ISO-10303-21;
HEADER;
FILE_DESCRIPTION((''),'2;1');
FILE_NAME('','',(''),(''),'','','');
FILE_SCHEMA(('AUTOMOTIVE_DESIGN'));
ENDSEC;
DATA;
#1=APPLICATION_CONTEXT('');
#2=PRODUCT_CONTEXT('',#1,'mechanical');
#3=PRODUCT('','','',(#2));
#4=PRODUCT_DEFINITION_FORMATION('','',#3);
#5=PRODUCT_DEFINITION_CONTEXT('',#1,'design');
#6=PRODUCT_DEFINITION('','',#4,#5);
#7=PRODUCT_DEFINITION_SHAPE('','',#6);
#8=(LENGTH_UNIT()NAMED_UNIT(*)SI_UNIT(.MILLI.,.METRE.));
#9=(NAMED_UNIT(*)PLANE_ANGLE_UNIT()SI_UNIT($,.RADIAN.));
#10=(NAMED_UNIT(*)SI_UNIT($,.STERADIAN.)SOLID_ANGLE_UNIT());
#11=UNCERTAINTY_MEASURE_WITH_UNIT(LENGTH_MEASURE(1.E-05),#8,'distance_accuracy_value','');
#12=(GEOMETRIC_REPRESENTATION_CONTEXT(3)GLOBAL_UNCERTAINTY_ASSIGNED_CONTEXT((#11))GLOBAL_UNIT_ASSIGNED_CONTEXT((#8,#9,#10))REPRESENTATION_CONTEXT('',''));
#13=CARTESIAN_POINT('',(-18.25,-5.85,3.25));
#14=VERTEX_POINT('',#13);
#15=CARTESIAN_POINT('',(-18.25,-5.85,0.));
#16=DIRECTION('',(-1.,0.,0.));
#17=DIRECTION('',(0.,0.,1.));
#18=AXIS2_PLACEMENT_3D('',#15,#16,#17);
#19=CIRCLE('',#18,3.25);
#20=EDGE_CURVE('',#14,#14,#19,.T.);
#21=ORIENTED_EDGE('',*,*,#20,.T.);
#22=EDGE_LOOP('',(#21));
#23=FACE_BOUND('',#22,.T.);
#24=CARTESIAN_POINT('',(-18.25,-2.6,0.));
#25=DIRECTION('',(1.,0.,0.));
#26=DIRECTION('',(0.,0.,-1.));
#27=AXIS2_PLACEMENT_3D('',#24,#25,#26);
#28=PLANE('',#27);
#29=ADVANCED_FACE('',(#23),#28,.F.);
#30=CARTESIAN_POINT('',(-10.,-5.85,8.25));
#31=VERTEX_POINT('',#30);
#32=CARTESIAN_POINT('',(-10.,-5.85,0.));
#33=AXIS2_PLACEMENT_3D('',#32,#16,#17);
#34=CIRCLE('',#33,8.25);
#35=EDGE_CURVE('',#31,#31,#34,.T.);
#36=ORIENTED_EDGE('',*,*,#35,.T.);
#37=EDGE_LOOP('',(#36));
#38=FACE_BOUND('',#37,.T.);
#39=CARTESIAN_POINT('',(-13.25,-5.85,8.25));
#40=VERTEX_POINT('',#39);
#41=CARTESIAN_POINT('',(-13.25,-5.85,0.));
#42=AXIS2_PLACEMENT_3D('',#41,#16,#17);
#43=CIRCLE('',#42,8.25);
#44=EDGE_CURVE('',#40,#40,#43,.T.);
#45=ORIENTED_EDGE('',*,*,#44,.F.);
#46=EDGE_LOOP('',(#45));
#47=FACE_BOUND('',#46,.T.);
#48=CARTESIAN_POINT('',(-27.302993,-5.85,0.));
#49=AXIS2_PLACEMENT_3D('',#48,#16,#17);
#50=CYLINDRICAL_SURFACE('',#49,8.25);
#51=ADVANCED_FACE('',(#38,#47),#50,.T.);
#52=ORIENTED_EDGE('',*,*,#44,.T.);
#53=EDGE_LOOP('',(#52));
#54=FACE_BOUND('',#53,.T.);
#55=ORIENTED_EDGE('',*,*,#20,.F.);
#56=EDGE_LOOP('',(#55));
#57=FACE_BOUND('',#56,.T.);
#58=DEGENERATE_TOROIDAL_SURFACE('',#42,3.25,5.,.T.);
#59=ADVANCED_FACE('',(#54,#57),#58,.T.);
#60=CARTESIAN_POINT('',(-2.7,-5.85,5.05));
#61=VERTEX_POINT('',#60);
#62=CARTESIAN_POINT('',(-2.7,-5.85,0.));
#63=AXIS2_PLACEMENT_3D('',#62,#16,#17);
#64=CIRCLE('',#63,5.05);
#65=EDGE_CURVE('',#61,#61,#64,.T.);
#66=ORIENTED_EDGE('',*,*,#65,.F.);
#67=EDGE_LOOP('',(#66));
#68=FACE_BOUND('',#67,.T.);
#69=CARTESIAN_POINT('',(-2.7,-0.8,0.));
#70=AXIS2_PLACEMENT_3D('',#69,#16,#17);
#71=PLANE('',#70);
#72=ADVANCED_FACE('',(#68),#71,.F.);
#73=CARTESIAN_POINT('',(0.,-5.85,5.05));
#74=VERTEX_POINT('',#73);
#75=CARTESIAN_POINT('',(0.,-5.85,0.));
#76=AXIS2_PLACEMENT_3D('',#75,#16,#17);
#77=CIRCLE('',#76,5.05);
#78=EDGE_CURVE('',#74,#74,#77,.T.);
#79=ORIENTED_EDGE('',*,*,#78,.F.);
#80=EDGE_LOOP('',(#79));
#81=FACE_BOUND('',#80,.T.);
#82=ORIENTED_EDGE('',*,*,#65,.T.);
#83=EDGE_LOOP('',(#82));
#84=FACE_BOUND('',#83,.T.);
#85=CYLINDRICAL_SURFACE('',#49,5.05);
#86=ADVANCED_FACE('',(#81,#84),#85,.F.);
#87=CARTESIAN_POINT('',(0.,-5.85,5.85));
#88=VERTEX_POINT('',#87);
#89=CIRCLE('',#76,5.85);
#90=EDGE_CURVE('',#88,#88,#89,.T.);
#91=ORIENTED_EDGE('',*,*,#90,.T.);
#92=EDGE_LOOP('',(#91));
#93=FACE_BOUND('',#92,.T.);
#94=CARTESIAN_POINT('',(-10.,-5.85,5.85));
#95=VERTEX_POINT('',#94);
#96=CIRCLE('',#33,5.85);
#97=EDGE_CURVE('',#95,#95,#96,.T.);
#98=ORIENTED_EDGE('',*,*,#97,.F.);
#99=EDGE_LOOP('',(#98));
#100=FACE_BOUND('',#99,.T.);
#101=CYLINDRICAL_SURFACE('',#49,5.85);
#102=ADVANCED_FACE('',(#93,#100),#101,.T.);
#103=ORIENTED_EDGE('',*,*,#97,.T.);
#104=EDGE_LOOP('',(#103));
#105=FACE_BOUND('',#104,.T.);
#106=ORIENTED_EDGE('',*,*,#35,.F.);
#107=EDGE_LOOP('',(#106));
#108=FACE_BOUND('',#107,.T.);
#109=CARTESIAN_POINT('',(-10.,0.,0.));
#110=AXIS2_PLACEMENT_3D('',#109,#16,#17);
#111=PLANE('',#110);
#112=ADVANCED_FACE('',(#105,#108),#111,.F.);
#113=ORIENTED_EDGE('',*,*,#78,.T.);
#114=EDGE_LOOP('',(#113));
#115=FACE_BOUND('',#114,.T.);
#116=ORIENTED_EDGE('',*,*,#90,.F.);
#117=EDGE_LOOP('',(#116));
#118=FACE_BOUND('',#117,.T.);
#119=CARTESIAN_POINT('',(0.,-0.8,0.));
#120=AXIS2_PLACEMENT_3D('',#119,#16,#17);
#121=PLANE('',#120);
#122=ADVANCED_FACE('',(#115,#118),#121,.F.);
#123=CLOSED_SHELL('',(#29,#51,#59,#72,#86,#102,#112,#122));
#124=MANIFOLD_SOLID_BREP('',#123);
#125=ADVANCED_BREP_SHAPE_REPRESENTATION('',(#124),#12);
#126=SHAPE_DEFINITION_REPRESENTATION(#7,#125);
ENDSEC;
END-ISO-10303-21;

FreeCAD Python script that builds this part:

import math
import FreeCAD as App
import Part
import Sketcher

V = App.Vector

doc = App.newDocument("Part")
body = doc.addObject("PartDesign::Body", "Body")

# Sketch on XY plane
sketch1 = doc.addObject("Sketcher::SketchObject", "Sketch")
body.addObject(sketch1)
sketch1.AttachmentSupport = (doc.XY_Plane, [""])
sketch1.MapMode = "FlatFace"
sketch1.addGeometry(Part.LineSegment(V(0, 0, 0), V(-10, 0, 0)), False)
sketch1.addGeometry(Part.LineSegment(V(-10, 0, 0), V(-10, 2.4, 0)), False)
sketch1.addGeometry(Part.LineSegment(V(-10, 2.4, 0), V(-13.2, 2.4, 0)), False)
sketch1.addGeometry(Part.ArcOfCircle(Part.Circle(V(-13.2, -2.6, 0), V(0, 0, 1), 5), math.radians(90), math.radians(180)), False)
sketch1.addGeometry(Part.LineSegment(V(-18.2, -2.6, 0), V(-18.2, -5.8, 0)), False)
sketch1.addGeometry(Part.LineSegment(V(-18.2, -5.8, 0), V(-2.7, -5.8, 0)), False)
sketch1.addGeometry(Part.LineSegment(V(-2.7, -5.8, 0), V(-2.7, -0.8, 0)), False)
sketch1.addGeometry(Part.LineSegment(V(-2.7, -0.8, 0), V(0, -0.8, 0)), False)
sketch1.addGeometry(Part.LineSegment(V(0, -0.8, 0), V(0, 0, 0)), False)
sketch1.addGeometry(Part.LineSegment(V(-18.2, -5.8, 0), V(0, -5.8, 0)), True)  # axis
sketch1.addConstraint(Sketcher.Constraint("Coincident", 0, 2, 1, 1))
sketch1.addConstraint(Sketcher.Constraint("Coincident", 1, 2, 2, 1))
sketch1.addConstraint(Sketcher.Constraint("Tangent", 2, 2, 3, 1))
sketch1.addConstraint(Sketcher.Constraint("Tangent", 3, 2, 4, 1))
sketch1.addConstraint(Sketcher.Constraint("Coincident", 4, 2, 5, 1))
sketch1.addConstraint(Sketcher.Constraint("Coincident", 5, 2, 6, 1))
sketch1.addConstraint(Sketcher.Constraint("Coincident", 6, 2, 7, 1))
sketch1.addConstraint(Sketcher.Constraint("Coincident", 7, 2, 8, 1))
sketch1.addConstraint(Sketcher.Constraint("Coincident", 8, 2, 0, 1))
sketch1.addConstraint(Sketcher.Constraint("Horizontal", 0))
sketch1.addConstraint(Sketcher.Constraint("Vertical", 1))
sketch1.addConstraint(Sketcher.Constraint("Horizontal", 2))
sketch1.addConstraint(Sketcher.Constraint("Vertical", 4))
sketch1.addConstraint(Sketcher.Constraint("Horizontal", 5))
sketch1.addConstraint(Sketcher.Constraint("Vertical", 6))
sketch1.addConstraint(Sketcher.Constraint("Horizontal", 7))
sketch1.addConstraint(Sketcher.Constraint("Vertical", 8))
sketch1.addConstraint(Sketcher.Constraint("Horizontal", 9))
sketch1.addConstraint(Sketcher.Constraint("Coincident", 8, 2, -1, 1))
sketch1.addConstraint(Sketcher.Constraint("Coincident", 9, 1, 4, 2))
sketch1.addConstraint(Sketcher.Constraint("PointOnObject", 9, 2, -2))
sketch1.addConstraint(Sketcher.Constraint("Equal", 2, 4))
sketch1.addConstraint(Sketcher.Constraint("Radius", 3, 5.0))
sketch1.addConstraint(Sketcher.Constraint("DistanceX", 0, 2, 0, 1, 10.0))
sketch1.addConstraint(Sketcher.Constraint("DistanceX", 7, 1, 7, 2, 2.7))
sketch1.addConstraint(Sketcher.Constraint("DistanceY", 1, 1, 1, 2, 2.4))
sketch1.addConstraint(Sketcher.Constraint("DistanceY", 8, 1, 8, 2, 0.8))
sketch1.addConstraint(Sketcher.Constraint("DistanceX", 2, 2, 2, 1, 3.25))
revolution = doc.addObject("PartDesign::Revolution", "Revolution")
body.addObject(revolution)
revolution.Profile = sketch1
revolution.ReferenceAxis = (sketch1, ["Axis0"])
revolution.Angle = 360

doc.recompute()
